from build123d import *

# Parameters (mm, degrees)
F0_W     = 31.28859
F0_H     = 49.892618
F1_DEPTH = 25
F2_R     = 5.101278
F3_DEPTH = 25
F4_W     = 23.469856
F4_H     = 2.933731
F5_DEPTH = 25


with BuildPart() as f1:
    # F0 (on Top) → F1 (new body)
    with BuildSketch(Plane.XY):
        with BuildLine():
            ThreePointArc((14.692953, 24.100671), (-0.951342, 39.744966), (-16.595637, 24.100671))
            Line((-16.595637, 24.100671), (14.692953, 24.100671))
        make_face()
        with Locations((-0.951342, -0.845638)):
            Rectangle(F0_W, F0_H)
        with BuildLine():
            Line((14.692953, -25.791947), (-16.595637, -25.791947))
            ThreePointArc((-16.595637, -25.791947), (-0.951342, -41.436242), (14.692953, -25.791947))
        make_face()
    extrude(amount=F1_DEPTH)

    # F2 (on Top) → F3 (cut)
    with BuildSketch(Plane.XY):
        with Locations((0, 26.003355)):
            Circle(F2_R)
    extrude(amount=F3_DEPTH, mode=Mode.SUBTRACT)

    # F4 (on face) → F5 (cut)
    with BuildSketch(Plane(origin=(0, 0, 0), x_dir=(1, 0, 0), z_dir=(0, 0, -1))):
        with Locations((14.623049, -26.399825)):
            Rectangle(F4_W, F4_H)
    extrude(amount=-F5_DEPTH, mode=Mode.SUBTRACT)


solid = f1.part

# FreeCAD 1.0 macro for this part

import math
import FreeCAD as App
import Part
import Sketcher
from FreeCAD import Vector
Q = App.Units.Quantity


def add_polygon(sketch, points):
    """Adds a closed chain of lines whose ends are joined by coincident constraints."""
    first, n = sketch.GeometryCount, len(points)
    for a, b in zip(points, points[1:] + points[:1]):
        sketch.addGeometry(Part.LineSegment(App.Vector(*a, 0), App.Vector(*b, 0)), False)
    for i in range(n):
        sketch.addConstraint(Sketcher.Constraint("Coincident", first + i, 2, first + (i + 1) % n, 1))

doc = App.newDocument("Part")
body = doc.addObject("PartDesign::Body", "Body")

sketch1 = doc.addObject("Sketcher::SketchObject", "Sketch")
body.addObject(sketch1)
sketch1.AttachmentSupport = (doc.XY_Plane, [""])
sketch1.MapMode = "FlatFace"
sketch1.addGeometry(Part.ArcOfCircle(Part.Circle(Vector(-1, 24, 0), Vector(0, 0, 1), 16), math.radians(0), math.radians(180)), False)
sketch1.addGeometry(Part.LineSegment(Vector(-17, 24, 0), Vector(-17, -26, 0)), False)
sketch1.addGeometry(Part.ArcOfCircle(Part.Circle(Vector(-1, -26, 0), Vector(0, 0, 1), 16), math.radians(180), math.radians(360)), False)
sketch1.addGeometry(Part.LineSegment(Vector(15, -26, 0), Vector(15, 24, 0)), False)
sketch1.addConstraint(Sketcher.Constraint("Tangent", 0, 2, 1, 1))
sketch1.addConstraint(Sketcher.Constraint("Tangent", 1, 2, 2, 1))
sketch1.addConstraint(Sketcher.Constraint("Tangent", 2, 2, 3, 1))
sketch1.addConstraint(Sketcher.Constraint("Tangent", 3, 2, 0, 1))
sketch1.addConstraint(Sketcher.Constraint("Vertical", 1))
sketch1.addConstraint(Sketcher.Constraint("Vertical", 3))
sketch1.addConstraint(Sketcher.Constraint("Radius", 0, Q("15.644295 mm")))
sketch1.addConstraint(Sketcher.Constraint("DistanceY", 1, 2, 1, 1, Q("49.892618 mm")))
sketch1.addConstraint(Sketcher.Constraint("DistanceY", -1, 1, 0, 3, Q("24.100671 mm")))
sketch1.addConstraint(Sketcher.Constraint("DistanceX", 0, 3, -1, 1, Q("0.951342 mm")))
pad1 = doc.addObject("PartDesign::Pad", "Pad")
body.addObject(pad1)
pad1.Profile = sketch1
pad1.Length = 25

sketch2 = doc.addObject("Sketcher::SketchObject", "Sketch001")
body.addObject(sketch2)
sketch2.AttachmentSupport = (doc.XY_Plane, [""])
sketch2.MapMode = "FlatFace"
sketch2.addGeometry(Part.Circle(Vector(0, 26, 0), Vector(0, 0, 1), 5), False)
sketch2.addConstraint(Sketcher.Constraint("PointOnObject", 0, 3, -2))
sketch2.addConstraint(Sketcher.Constraint("Diameter", 0, Q("10.202556 mm")))
sketch2.addConstraint(Sketcher.Constraint("DistanceY", -1, 1, 0, 3, Q("26.003355 mm")))
pocket1 = doc.addObject("PartDesign::Pocket", "Pocket")
body.addObject(pocket1)
pocket1.Profile = sketch2
pocket1.Length = 25
pocket1.Reversed = True

sketch3 = doc.addObject("Sketcher::SketchObject", "Sketch002")
body.addObject(sketch3)
sketch3.AttachmentSupport = (doc.XY_Plane, [""])
sketch3.MapMode = "FlatFace"
add_polygon(sketch3, [(2.9, 24.9), (2.9, 27.9), (26.4, 27.9), (26.4, 24.9)])
sketch3.addConstraint(Sketcher.Constraint("Vertical", 0))
sketch3.addConstraint(Sketcher.Constraint("Horizontal", 1))
sketch3.addConstraint(Sketcher.Constraint("Vertical", 2))
sketch3.addConstraint(Sketcher.Constraint("Horizontal", 3))
sketch3.addConstraint(Sketcher.Constraint("DistanceY", 0, 1, 0, 2, Q("2.933731 mm")))
sketch3.addConstraint(Sketcher.Constraint("DistanceX", 1, 1, 1, 2, Q("23.469856 mm")))
sketch3.addConstraint(Sketcher.Constraint("DistanceX", -1, 1, 0, 2, Q("2.888121 mm")))
sketch3.addConstraint(Sketcher.Constraint("DistanceY", -1, 1, 0, 2, Q("27.866691 mm")))
pocket2 = doc.addObject("PartDesign::Pocket", "Pocket001")
body.addObject(pocket2)
pocket2.Profile = sketch3
pocket2.Length = 25
pocket2.Reversed = True

doc.recompute()
